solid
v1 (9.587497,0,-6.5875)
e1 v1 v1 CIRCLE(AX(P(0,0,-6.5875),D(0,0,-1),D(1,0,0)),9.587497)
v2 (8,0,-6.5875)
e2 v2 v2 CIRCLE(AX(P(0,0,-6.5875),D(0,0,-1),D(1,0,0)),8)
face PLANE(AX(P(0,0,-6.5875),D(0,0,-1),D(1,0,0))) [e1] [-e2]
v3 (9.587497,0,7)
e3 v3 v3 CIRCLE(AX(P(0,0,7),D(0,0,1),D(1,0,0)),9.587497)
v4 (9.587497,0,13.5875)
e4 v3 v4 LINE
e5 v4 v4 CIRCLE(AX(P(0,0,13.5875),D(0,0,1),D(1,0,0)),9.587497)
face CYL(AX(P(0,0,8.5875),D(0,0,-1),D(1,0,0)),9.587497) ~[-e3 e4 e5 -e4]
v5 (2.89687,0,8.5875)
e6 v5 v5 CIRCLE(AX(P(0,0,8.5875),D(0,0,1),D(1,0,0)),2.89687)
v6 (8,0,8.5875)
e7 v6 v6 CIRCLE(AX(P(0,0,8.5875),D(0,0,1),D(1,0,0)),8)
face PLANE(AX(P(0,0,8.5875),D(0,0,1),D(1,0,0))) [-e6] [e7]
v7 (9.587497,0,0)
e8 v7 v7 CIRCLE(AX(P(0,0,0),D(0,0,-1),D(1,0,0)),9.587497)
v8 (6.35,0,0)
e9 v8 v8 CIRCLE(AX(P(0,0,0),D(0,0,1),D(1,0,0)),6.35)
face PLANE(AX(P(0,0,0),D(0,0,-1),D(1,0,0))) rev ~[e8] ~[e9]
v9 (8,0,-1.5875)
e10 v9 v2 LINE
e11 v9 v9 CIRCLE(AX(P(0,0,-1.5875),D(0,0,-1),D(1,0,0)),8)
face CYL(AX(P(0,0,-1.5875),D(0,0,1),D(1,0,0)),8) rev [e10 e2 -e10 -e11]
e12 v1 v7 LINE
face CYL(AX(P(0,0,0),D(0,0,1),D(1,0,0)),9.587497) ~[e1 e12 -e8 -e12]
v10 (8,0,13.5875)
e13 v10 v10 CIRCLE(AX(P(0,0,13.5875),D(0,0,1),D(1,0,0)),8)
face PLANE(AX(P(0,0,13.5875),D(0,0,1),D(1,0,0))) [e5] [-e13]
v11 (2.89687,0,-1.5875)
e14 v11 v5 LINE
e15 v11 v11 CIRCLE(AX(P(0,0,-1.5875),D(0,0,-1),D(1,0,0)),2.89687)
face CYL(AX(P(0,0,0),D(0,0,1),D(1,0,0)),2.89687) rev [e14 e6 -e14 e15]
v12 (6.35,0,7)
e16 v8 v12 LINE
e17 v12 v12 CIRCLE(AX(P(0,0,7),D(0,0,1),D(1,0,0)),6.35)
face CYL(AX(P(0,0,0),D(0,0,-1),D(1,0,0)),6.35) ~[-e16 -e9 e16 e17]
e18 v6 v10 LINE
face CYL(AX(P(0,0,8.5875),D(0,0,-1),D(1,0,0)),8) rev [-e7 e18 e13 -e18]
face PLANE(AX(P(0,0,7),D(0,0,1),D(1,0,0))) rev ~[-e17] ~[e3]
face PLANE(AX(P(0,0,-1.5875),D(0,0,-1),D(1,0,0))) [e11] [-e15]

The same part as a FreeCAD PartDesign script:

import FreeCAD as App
import Part
import Sketcher

V = App.Vector
Q = App.Units.Quantity

doc = App.newDocument("Part")
body = doc.addObject("PartDesign::Body", "Body")

# Sketch on XY plane
sketch1 = body.newObject("Sketcher::SketchObject", "Sketch")
sketch1.AttachmentSupport = (doc.getObject("XY_Plane"), [""])
sketch1.MapMode = "FlatFace"
sketch1.addGeometry([
    Part.Circle(V(0, 0, 0), V(0, 0, 1), 6.3),
    Part.Circle(V(0, 0, 0), V(0, 0, 1), 2.9),
], False)
sketch1.addConstraint([
    Sketcher.Constraint("Coincident", 0, 3, -1, 1),
    Sketcher.Constraint("Coincident", 1, 3, -1, 1),
    Sketcher.Constraint("Diameter", 0, Q("12.7 mm")),
    Sketcher.Constraint("Diameter", 1, Q("5.79374 mm")),
])
pad1 = body.newObject("PartDesign::Pad", "Pad")
pad1.Profile = sketch1
pad1.Length = 7

# Sketch on XY plane
sketch2 = body.newObject("Sketcher::SketchObject", "Sketch001")
sketch2.AttachmentSupport = (doc.getObject("XY_Plane"), [""])
sketch2.MapMode = "FlatFace"
sketch2.AttachmentOffset = App.Placement(V(0, 0, 7), App.Rotation())
sketch2.addGeometry([
    Part.Circle(V(0, 0, 0), V(0, 0, 1), 9.6),
    Part.Circle(V(0, 0, 0), V(0, 0, 1), 2.9),
], False)
sketch2.addConstraint([
    Sketcher.Constraint("Coincident", 0, 3, -1, 1),
    Sketcher.Constraint("Coincident", 1, 3, -1, 1),
    Sketcher.Constraint("Diameter", 1, Q("5.79374 mm")),
    Sketcher.Constraint("Diameter", 0, Q("19.174994 mm")),
])
pad2 = body.newObject("PartDesign::Pad", "Pad001")
pad2.Profile = sketch2
pad2.Length = 1.5875
body2 = doc.addObject("PartDesign::Body", "Body001")

# Sketch on XY plane
sketch3 = body2.newObject("Sketcher::SketchObject", "Sketch002")
sketch3.AttachmentSupport = (doc.getObject("XY_Plane001"), [""])
sketch3.MapMode = "FlatFace"
sketch3.AttachmentOffset = App.Placement(V(0, 0, -1.5875), App.Rotation())
sketch3.addGeometry([
    Part.Circle(V(0, 0, 0), V(0, 0, 1), 10),
    Part.Circle(V(0, 0, 0), V(0, 0, 1), 8),
], False)
sketch3.addConstraint([
    Sketcher.Constraint("Coincident", 0, 3, -1, 1),
    Sketcher.Constraint("Coincident", 1, 3, -1, 1),
    Sketcher.Constraint("Diameter", 1, Q("16 mm")),
    Sketcher.Constraint("Diameter", 0, Q("19.174994 mm")),
])
pad3 = body2.newObject("PartDesign::Pad", "Pad002")
pad3.Profile = sketch3
pad3.Length = 5
pad3.Reversed = True
body.AllowCompound = True
doc.recompute()

boolean = body.newObject("PartDesign::Boolean", "Boolean")
boolean.Type = "Fuse"
boolean.addObjects([body2])

# Sketch on XY plane
sketch4 = body.newObject("Sketcher::SketchObject", "Sketch003")
sketch4.AttachmentSupport = (doc.getObject("XY_Plane"), [""])
sketch4.MapMode = "FlatFace"
sketch4.addGeometry([
    Part.Circle(V(0, 0, 0), V(0, 0, 1), 9.6),
    Part.Circle(V(0, 0, 0), V(0, 0, 1), 2.9),
], False)
sketch4.addConstraint([
    Sketcher.Constraint("Coincident", 0, 3, -1, 1),
    Sketcher.Constraint("Coincident", 1, 3, -1, 1),
    Sketcher.Constraint("Diameter", 1, Q("5.79374 mm")),
    Sketcher.Constraint("Diameter", 0, Q("19.174994 mm")),
])
pad4 = body.newObject("PartDesign::Pad", "Pad003")
pad4.Profile = sketch4
pad4.Length = 1.5875
pad4.Reversed = True

# Sketch on XY plane
sketch5 = body.newObject("Sketcher::SketchObject", "Sketch004")
sketch5.AttachmentSupport = (doc.getObject("XY_Plane"), [""])
sketch5.MapMode = "FlatFace"
sketch5.AttachmentOffset = App.Placement(V(0, 0, 8.5875), App.Rotation())
sketch5.addGeometry([
    Part.Circle(V(0, 0, 0), V(0, 0, 1), 10),
    Part.Circle(V(0, 0, 0), V(0, 0, 1), 8),
], False)
sketch5.addConstraint([
    Sketcher.Constraint("Coincident", 0, 3, -1, 1),
    Sketcher.Constraint("Coincident", 1, 3, -1, 1),
    Sketcher.Constraint("Diameter", 1, Q("16 mm")),
    Sketcher.Constraint("Diameter", 0, Q("19.174994 mm")),
])
pad5 = body.newObject("PartDesign::Pad", "Pad004")
pad5.Profile = sketch5
pad5.Length = 5

doc.recompute()
